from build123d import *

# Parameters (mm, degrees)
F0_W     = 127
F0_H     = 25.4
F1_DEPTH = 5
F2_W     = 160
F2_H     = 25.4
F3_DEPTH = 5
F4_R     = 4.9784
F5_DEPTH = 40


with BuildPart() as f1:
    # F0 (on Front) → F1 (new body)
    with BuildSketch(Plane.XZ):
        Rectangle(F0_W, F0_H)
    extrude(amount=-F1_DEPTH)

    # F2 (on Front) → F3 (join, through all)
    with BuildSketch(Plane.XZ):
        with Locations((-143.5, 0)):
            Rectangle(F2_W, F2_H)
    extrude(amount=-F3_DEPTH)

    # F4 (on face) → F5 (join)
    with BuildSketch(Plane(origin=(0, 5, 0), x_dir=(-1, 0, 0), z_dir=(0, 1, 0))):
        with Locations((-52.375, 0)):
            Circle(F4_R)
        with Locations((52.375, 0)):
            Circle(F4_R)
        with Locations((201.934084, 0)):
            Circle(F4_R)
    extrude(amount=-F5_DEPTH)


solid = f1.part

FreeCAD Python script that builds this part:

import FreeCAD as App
import Part
import Sketcher
from FreeCAD import Vector


def add_polygon(sketch, points):
    """Adds a closed chain of lines whose ends are joined by coincident constraints."""
    first, n = sketch.GeometryCount, len(points)
    for a, b in zip(points, points[1:] + points[:1]):
        sketch.addGeometry(Part.LineSegment(App.Vector(*a, 0), App.Vector(*b, 0)), False)
    for i in range(n):
        sketch.addConstraint(Sketcher.Constraint("Coincident", first + i, 2, first + (i + 1) % n, 1))

doc = App.newDocument("Part")
body = doc.addObject("PartDesign::Body", "Body")

sketch1 = body.newObject("Sketcher::SketchObject", "Sketch")
sketch1.AttachmentSupport = (doc.getObject("XZ_Plane"), [""])
sketch1.MapMode = "FlatFace"
add_polygon(sketch1, [(-63.5, 12.7), (-63.5, -12.7), (63.5, -12.7), (63.5, 12.7)])
sketch1.addConstraint([
    Sketcher.Constraint("Vertical", 0),
    Sketcher.Constraint("Horizontal", 1),
    Sketcher.Constraint("Vertical", 2),
    Sketcher.Constraint("Horizontal", 3),
    Sketcher.Constraint("Symmetric", 0, 2, 2, 2, -1, 1),
    Sketcher.Constraint("DistanceX", 1, 1, 1, 2, 127.0),
    Sketcher.Constraint("DistanceY", 0, 2, 0, 1, 25.4),
])
pad1 = body.newObject("PartDesign::Pad", "Pad")
pad1.Profile = sketch1
pad1.Length = 5
pad1.Reversed = True

sketch2 = body.newObject("Sketcher::SketchObject", "Sketch001")
sketch2.AttachmentSupport = (doc.getObject("XZ_Plane"), [""])
sketch2.MapMode = "FlatFace"
add_polygon(sketch2, [(-223.5, 12.7), (-223.5, -12.7), (-63.5, -12.7), (-63.5, 12.7)])
sketch2.addConstraint([
    Sketcher.Constraint("Vertical", 0),
    Sketcher.Constraint("Horizontal", 1),
    Sketcher.Constraint("Vertical", 2),
    Sketcher.Constraint("Horizontal", 3),
    Sketcher.Constraint("DistanceX", 1, 1, 1, 2, 160.0),
    Sketcher.Constraint("DistanceY", 0, 2, 0, 1, 25.4),
    Sketcher.Constraint("DistanceX", 0, 2, -1, 1, 223.5),
    Sketcher.Constraint("DistanceY", 0, 2, -1, 1, 12.7),
])
pad2 = body.newObject("PartDesign::Pad", "Pad001")
pad2.Profile = sketch2
pad2.Length = 5
pad2.Reversed = True

sketch3 = body.newObject("Sketcher::SketchObject", "Sketch002")
sketch3.AttachmentSupport = (doc.getObject("XZ_Plane"), [""])
sketch3.MapMode = "FlatFace"
sketch3.AttachmentOffset = App.Placement(Vector(0, 0, -5), App.Rotation())
sketch3.addGeometry([
    Part.Circle(Vector(52.375, 0, 0), Vector(0, 0, 1), 4.9784),
    Part.Circle(Vector(-52.375, 0, 0), Vector(0, 0, 1), 4.9784),
    Part.Circle(Vector(-201.934084, 0, 0), Vector(0, 0, 1), 4.9784),
], False)
sketch3.addConstraint([
    Sketcher.Constraint("Equal", 0, 1),
    Sketcher.Constraint("Equal", 1, 2),
    Sketcher.Constraint("Symmetric", 0, 3, 1, 3, -1, 1),
    Sketcher.Constraint("PointOnObject", 0, 3, -1),
    Sketcher.Constraint("PointOnObject", 2, 3, -1),
    Sketcher.Constraint("Diameter", 0, 9.9568),
    Sketcher.Constraint("DistanceX", 1, 3, 0, 3, 104.75),
    Sketcher.Constraint("DistanceX", 2, 3, -1, 1, 201.934084),
])
pad3 = body.newObject("PartDesign::Pad", "Pad002")
pad3.Profile = sketch3
pad3.Length = 40

doc.recompute()
